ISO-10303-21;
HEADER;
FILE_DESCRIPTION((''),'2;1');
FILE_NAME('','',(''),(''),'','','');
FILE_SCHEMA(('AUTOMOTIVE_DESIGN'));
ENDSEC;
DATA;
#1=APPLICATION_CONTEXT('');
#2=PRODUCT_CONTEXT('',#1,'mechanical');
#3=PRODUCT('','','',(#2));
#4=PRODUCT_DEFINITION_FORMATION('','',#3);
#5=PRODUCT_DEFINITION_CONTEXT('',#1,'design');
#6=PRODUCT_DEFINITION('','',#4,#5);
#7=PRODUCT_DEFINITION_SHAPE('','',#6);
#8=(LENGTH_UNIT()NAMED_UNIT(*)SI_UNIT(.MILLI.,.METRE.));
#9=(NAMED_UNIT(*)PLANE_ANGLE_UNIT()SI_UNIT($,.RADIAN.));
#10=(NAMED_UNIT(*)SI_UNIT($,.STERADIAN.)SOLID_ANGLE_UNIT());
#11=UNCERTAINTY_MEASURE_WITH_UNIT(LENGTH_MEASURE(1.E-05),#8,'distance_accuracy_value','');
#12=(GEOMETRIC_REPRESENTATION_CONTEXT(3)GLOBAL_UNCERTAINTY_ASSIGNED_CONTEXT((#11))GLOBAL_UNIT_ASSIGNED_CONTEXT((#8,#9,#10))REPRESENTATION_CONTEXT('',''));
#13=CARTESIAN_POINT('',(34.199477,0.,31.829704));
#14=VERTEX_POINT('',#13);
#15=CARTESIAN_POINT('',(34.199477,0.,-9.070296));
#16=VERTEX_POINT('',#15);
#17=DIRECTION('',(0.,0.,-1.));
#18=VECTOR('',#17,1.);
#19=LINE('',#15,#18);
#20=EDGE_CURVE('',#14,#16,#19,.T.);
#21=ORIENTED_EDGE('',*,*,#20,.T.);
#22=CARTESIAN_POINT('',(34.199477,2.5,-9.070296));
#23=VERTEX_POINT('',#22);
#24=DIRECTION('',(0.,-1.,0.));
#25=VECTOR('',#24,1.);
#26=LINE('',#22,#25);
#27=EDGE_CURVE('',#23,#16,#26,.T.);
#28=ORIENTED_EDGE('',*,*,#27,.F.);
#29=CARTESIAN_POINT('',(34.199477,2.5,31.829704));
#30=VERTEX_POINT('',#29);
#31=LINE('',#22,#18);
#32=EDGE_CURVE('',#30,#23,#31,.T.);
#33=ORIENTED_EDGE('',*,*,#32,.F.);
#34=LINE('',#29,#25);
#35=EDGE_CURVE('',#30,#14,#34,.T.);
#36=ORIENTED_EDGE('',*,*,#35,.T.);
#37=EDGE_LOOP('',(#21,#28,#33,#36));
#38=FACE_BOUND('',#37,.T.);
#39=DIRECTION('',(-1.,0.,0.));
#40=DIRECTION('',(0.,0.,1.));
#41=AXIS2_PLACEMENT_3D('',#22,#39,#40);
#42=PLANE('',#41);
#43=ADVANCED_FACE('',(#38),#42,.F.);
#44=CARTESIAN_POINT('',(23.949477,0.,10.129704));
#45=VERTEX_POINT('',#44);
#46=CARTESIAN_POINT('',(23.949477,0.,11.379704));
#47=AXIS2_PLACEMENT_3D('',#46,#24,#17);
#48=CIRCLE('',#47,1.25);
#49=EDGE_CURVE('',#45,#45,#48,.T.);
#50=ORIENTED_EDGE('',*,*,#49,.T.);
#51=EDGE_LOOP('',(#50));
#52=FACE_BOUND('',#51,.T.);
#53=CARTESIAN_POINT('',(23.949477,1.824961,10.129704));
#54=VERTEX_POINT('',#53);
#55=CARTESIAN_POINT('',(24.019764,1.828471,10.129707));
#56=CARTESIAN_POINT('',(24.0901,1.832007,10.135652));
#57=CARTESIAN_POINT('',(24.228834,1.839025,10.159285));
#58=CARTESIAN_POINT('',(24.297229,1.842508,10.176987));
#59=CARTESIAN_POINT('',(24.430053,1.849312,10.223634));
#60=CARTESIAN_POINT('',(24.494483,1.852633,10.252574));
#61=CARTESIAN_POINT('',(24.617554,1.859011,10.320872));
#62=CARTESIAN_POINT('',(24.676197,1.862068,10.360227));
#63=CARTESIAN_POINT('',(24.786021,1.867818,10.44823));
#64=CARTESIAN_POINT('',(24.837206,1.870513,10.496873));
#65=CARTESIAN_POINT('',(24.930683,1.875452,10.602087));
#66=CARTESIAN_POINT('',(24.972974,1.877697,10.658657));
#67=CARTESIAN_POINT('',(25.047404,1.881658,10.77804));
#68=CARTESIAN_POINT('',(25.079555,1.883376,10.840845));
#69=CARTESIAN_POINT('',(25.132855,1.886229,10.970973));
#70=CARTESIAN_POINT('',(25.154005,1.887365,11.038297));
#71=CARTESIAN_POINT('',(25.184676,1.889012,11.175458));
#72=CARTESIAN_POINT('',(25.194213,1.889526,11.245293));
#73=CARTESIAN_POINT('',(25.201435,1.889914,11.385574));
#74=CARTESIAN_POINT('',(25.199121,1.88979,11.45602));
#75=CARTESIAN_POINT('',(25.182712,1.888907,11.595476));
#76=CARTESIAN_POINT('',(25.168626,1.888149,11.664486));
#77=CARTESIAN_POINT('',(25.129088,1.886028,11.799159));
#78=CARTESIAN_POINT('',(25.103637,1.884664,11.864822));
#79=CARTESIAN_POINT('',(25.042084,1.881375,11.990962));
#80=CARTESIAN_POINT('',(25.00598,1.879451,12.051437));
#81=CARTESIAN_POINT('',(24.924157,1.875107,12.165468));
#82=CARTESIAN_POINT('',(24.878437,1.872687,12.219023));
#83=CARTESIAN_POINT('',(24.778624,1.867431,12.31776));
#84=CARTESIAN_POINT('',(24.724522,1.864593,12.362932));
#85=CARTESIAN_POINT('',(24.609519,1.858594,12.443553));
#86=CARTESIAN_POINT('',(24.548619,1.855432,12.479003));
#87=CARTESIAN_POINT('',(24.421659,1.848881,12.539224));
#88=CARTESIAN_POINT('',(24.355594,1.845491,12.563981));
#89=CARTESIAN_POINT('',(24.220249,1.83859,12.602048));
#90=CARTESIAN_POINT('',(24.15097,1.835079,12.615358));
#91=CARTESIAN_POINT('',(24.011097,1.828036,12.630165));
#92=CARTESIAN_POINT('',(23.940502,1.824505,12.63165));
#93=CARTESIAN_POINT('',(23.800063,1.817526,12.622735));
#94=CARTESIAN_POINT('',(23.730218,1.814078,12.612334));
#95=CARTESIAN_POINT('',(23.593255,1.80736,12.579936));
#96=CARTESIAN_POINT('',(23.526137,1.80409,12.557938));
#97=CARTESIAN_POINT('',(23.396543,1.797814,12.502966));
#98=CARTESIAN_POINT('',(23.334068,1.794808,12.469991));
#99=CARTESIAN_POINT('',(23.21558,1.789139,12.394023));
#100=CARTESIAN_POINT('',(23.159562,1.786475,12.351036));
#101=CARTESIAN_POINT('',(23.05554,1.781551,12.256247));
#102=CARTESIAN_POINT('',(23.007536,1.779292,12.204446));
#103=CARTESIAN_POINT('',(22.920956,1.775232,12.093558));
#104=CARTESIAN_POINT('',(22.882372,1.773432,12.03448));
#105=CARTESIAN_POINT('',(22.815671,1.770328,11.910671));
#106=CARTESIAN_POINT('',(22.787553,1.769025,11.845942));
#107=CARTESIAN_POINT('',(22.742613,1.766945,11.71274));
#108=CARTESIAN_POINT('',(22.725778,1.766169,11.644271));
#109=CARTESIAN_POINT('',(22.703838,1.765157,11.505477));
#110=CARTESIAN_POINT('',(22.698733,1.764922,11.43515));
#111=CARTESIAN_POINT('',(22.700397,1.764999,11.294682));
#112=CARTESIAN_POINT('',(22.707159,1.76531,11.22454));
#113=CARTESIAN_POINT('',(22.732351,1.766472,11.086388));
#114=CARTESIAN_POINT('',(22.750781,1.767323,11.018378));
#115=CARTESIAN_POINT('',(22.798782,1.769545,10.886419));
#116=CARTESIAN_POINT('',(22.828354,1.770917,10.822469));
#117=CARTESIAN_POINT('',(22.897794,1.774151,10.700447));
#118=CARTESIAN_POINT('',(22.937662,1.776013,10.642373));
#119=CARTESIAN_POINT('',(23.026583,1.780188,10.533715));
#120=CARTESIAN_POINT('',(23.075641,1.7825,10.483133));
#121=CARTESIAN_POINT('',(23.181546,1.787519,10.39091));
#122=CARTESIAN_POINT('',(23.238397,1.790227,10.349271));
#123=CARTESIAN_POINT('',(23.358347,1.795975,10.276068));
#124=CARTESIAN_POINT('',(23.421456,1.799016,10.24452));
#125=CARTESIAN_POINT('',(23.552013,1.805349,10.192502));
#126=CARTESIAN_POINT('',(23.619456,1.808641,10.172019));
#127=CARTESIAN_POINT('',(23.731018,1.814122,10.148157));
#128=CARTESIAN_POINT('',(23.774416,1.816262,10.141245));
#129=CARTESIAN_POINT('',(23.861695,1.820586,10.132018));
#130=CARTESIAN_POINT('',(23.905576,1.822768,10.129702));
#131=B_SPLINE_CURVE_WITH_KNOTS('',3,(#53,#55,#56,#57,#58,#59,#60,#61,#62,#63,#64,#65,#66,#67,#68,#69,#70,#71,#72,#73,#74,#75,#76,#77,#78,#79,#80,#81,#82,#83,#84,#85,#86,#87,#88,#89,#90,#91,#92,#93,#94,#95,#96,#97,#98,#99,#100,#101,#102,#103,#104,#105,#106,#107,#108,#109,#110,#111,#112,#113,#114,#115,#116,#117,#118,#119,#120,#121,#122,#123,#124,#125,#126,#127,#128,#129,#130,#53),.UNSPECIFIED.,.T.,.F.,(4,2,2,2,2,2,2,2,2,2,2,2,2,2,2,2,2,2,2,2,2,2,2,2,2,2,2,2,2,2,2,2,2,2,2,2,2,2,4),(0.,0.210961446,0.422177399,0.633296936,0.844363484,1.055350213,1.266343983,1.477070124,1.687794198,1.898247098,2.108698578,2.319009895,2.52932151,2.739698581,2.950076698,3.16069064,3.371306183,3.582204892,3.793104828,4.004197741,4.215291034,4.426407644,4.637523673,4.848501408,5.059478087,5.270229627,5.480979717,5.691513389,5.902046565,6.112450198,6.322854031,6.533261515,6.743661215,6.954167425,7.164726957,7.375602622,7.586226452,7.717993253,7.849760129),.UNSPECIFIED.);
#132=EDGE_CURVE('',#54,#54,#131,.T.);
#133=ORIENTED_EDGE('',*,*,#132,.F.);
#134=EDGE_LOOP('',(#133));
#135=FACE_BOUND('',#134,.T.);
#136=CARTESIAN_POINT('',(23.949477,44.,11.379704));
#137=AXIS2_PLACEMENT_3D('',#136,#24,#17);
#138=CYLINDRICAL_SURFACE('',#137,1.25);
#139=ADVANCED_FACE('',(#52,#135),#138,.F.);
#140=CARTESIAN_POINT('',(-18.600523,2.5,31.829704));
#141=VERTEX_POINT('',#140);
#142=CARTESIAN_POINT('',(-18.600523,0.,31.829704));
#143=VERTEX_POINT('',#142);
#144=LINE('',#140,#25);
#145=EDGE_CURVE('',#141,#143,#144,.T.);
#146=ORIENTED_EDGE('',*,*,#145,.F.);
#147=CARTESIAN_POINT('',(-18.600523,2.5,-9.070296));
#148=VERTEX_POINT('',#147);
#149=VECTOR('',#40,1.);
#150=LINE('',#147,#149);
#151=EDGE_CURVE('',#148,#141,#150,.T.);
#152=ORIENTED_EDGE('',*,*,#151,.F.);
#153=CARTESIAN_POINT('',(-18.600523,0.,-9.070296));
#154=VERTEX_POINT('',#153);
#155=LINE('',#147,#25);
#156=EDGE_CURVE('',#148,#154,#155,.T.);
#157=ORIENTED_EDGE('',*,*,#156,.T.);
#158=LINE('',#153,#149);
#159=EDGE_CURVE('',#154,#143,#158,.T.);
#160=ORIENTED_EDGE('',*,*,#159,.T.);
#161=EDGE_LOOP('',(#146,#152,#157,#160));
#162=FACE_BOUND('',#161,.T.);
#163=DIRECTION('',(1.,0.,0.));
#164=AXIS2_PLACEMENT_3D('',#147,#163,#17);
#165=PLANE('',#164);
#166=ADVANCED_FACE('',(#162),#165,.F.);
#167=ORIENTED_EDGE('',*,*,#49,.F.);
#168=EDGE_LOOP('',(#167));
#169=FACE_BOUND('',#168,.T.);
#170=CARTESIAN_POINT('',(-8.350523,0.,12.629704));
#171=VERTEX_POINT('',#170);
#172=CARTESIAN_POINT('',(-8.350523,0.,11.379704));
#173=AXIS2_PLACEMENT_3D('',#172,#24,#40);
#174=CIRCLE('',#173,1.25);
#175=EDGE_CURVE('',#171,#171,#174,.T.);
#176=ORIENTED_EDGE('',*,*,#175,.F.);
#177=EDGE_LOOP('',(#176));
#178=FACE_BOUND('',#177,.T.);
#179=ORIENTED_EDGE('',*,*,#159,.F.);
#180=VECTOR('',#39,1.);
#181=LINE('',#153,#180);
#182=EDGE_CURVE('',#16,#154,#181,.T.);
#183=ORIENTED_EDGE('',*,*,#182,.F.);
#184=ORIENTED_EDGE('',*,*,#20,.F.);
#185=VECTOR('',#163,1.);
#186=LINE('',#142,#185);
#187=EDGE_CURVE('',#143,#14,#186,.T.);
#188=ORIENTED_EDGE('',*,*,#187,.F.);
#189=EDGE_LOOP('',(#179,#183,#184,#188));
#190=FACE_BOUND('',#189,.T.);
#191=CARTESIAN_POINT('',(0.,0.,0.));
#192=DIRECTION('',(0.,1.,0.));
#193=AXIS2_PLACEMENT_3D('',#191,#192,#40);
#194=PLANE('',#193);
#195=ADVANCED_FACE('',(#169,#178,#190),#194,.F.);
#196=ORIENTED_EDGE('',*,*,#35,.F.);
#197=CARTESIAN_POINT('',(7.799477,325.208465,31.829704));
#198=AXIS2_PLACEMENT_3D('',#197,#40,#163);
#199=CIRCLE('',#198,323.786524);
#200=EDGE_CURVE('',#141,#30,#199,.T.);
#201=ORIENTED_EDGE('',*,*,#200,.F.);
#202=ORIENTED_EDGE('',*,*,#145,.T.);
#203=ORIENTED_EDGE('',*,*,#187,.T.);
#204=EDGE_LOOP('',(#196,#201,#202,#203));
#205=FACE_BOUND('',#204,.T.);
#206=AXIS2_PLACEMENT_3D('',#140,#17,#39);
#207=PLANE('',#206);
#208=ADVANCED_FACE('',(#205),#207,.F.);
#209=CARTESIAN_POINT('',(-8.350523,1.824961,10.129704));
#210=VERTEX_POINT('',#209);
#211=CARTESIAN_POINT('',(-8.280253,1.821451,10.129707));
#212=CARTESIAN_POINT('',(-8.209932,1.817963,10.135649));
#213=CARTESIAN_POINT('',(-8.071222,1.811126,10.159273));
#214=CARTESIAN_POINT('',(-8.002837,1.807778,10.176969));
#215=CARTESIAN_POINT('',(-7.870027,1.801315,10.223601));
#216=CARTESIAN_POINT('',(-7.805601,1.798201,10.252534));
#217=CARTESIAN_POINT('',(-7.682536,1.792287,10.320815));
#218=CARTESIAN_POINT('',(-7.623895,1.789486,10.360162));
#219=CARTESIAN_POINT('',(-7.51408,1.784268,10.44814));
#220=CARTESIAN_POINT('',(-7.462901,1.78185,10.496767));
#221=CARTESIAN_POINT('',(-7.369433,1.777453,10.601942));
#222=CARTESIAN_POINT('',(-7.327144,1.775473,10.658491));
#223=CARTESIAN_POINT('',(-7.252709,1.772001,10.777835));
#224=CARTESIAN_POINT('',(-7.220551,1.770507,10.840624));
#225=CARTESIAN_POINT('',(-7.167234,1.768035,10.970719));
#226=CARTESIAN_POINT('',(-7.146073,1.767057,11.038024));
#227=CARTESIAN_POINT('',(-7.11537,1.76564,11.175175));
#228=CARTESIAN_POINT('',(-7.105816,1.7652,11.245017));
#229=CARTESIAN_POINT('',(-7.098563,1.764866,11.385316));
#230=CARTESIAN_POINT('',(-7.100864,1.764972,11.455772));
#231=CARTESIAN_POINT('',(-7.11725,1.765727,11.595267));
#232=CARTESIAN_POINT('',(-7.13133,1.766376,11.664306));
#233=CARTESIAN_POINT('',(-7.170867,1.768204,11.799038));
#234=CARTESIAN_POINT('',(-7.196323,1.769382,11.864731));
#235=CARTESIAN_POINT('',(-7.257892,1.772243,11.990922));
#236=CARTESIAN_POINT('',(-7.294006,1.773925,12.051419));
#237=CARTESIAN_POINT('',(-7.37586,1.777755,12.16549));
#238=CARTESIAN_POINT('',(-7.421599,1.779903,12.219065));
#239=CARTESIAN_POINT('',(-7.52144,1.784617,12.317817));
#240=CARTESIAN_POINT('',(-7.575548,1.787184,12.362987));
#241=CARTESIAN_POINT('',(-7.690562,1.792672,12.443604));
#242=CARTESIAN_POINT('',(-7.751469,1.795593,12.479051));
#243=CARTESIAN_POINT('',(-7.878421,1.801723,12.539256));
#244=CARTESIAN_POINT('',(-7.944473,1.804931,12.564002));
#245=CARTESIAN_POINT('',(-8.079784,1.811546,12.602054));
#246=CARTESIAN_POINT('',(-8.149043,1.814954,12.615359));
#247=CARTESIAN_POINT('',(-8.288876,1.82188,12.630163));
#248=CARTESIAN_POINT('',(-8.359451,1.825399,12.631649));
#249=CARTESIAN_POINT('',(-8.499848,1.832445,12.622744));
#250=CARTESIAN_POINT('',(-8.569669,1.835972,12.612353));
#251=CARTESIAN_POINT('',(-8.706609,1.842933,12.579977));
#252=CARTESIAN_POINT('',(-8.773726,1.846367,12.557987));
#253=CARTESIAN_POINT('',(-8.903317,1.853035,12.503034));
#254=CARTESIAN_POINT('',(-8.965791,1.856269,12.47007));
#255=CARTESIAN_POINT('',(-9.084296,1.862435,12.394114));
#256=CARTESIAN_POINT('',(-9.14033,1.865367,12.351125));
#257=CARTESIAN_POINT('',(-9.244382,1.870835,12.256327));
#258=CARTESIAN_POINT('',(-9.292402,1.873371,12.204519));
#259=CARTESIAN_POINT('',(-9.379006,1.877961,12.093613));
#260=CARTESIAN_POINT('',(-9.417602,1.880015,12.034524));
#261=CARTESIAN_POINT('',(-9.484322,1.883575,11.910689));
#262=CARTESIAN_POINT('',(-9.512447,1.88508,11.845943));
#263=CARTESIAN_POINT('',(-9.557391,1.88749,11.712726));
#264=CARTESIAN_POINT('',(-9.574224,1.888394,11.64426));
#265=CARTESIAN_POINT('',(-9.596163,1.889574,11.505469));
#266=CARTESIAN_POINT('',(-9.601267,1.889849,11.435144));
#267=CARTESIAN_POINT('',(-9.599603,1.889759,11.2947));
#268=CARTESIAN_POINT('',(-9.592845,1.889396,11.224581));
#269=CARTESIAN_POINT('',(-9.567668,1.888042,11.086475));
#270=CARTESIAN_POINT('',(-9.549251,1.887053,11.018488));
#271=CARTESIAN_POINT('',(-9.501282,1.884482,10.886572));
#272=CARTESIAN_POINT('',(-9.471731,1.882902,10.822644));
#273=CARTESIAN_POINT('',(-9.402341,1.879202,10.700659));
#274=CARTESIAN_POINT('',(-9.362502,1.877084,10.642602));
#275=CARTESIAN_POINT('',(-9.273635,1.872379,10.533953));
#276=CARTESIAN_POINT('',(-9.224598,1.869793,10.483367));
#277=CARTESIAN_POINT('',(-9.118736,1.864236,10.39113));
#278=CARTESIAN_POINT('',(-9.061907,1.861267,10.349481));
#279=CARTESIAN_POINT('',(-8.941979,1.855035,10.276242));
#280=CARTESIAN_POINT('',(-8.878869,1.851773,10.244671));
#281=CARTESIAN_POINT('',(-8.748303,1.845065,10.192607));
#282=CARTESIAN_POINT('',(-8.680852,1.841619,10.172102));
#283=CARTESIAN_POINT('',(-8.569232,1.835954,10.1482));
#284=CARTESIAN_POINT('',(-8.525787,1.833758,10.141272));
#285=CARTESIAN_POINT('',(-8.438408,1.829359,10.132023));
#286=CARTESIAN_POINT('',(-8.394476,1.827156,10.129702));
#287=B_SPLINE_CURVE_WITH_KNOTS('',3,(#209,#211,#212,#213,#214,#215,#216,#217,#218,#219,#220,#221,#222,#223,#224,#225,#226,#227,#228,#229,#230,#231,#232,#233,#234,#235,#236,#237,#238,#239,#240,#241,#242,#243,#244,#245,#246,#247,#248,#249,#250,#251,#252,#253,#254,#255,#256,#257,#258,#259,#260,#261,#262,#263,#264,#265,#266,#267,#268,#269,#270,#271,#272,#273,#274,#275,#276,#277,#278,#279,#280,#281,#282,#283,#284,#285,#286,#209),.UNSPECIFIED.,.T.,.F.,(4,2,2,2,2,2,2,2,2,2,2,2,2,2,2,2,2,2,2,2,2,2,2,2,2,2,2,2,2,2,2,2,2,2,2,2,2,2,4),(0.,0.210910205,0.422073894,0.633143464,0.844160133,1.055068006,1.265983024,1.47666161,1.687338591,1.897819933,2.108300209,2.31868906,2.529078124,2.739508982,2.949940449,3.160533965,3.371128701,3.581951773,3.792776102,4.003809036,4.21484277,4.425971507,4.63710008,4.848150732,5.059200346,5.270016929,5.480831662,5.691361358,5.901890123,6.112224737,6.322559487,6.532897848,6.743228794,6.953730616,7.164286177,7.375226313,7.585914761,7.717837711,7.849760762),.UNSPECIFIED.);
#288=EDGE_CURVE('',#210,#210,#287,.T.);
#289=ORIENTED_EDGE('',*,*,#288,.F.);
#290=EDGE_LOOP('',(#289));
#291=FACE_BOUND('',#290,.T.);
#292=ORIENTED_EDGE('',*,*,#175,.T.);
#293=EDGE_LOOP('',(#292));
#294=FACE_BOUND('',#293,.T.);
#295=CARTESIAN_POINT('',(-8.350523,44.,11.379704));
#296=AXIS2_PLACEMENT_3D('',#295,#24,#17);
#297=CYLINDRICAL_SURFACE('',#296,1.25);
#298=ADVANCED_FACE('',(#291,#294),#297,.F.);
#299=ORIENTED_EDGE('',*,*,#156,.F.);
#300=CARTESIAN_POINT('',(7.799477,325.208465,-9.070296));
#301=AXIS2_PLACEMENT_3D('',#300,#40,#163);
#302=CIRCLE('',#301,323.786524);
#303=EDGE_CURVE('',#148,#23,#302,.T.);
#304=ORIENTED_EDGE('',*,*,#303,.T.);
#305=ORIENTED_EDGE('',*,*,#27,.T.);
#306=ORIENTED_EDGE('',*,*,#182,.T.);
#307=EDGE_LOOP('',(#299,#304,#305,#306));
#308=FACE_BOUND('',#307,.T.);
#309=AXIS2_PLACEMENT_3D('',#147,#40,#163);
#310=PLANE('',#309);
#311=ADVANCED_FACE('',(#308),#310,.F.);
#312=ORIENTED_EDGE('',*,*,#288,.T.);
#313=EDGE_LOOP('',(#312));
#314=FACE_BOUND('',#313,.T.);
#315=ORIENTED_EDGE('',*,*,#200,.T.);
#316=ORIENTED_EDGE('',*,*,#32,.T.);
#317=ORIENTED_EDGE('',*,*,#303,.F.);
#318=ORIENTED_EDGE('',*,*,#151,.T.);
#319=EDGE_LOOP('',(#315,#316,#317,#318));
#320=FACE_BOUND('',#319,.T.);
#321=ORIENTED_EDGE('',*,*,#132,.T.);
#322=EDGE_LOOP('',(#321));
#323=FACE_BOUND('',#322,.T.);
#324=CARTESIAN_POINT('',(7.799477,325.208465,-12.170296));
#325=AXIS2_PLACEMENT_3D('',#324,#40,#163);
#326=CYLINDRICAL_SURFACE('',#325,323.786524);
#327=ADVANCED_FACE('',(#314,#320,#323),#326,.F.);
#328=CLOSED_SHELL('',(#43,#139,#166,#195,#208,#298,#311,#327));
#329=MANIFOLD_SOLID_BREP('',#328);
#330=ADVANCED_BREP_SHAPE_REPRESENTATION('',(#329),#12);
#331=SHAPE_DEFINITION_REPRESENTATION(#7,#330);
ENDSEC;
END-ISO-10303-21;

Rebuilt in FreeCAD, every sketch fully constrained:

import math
import FreeCAD as App
import Part
import Sketcher

V = App.Vector


def add_polygon(sketch, points):
    """Adds a closed chain of lines whose ends are joined by coincident constraints."""
    first, n = sketch.GeometryCount, len(points)
    for a, b in zip(points, points[1:] + points[:1]):
        sketch.addGeometry(Part.LineSegment(App.Vector(*a, 0), App.Vector(*b, 0)), False)
    for i in range(n):
        sketch.addConstraint(Sketcher.Constraint("Coincident", first + i, 2, first + (i + 1) % n, 1))

doc = App.newDocument("Part")
body = doc.addObject("PartDesign::Body", "Body")

sketch1 = body.newObject("Sketcher::SketchObject", "Sketch")
sketch1.AttachmentSupport = (doc.getObject("XZ_Plane"), [""])
sketch1.MapMode = "FlatFace"
add_polygon(sketch1, [(-19, -9), (-19, 32), (34, 32), (34, -9)])
sketch1.addConstraint([
    Sketcher.Constraint("Vertical", 0),
    Sketcher.Constraint("Horizontal", 1),
    Sketcher.Constraint("Vertical", 2),
    Sketcher.Constraint("Horizontal", 3),
    Sketcher.Constraint("DistanceX", 1, 1, 1, 2, 52.8),
    Sketcher.Constraint("DistanceY", 0, 1, 0, 2, 40.9),
    Sketcher.Constraint("DistanceX", 0, 2, -1, 1, 18.600523),
    Sketcher.Constraint("DistanceY", -1, 1, 0, 2, 31.829704),
])
pad1 = body.newObject("PartDesign::Pad", "Pad")
pad1.Profile = sketch1
pad1.Length = 2.5
pad1.Reversed = True

sketch2 = body.newObject("Sketcher::SketchObject", "Sketch001")
sketch2.AttachmentSupport = (doc.getObject("XY_Plane"), [""])
sketch2.MapMode = "FlatFace"
sketch2.AttachmentOffset = App.Placement(V(0, 0, 31.829704), App.Rotation())
sketch2.addGeometry([
    Part.LineSegment(V(34, 2, 0), V(-19, 2, 0)),
    Part.ArcOfCircle(Part.Circle(V(8, 325, 0), V(0, 0, 1), 324), math.radians(-94.68), math.radians(-85.32)),
], False)
sketch2.addConstraint([
    Sketcher.Constraint("Coincident", 0, 1, 1, 2),
    Sketcher.Constraint("Coincident", 1, 1, 0, 2),
    Sketcher.Constraint("Horizontal", 0),
    Sketcher.Constraint("DistanceX", 0, 2, 0, 1, 52.8),
    Sketcher.Constraint("DistanceY", -1, 1, 0, 1, 2.5),
    Sketcher.Constraint("Radius", 1, 323.786525),
    Sketcher.Constraint("DistanceX", -1, 1, 1, 3, 7.799477),
])
pocket1 = body.newObject("PartDesign::Pocket", "Pocket")
pocket1.Profile = sketch2
pocket1.Length = 44

sketch3 = body.newObject("Sketcher::SketchObject", "Sketch002")
sketch3.AttachmentSupport = (doc.getObject("XZ_Plane"), [""])
sketch3.MapMode = "FlatFace"
sketch3.addGeometry([
    Part.Circle(V(23.9, 11.4, 0), V(0, 0, 1), 1.2),
    Part.Circle(V(-8.4, 11.4, 0), V(0, 0, 1), 1.2),
], False)
sketch3.addConstraint([
    Sketcher.Constraint("Equal", 0, 1),
    Sketcher.Constraint("Horizontal", 0, 3, 1, 3),
    Sketcher.Constraint("Diameter", 0, 2.5),
    Sketcher.Constraint("DistanceX", 1, 3, 0, 3, 32.3),
    Sketcher.Constraint("DistanceX", -1, 1, 0, 3, 23.949477),
    Sketcher.Constraint("DistanceY", -1, 1, 0, 3, 11.379704),
])
pocket2 = body.newObject("PartDesign::Pocket", "Pocket001")
pocket2.Profile = sketch3
pocket2.Length = 44

doc.recompute()
